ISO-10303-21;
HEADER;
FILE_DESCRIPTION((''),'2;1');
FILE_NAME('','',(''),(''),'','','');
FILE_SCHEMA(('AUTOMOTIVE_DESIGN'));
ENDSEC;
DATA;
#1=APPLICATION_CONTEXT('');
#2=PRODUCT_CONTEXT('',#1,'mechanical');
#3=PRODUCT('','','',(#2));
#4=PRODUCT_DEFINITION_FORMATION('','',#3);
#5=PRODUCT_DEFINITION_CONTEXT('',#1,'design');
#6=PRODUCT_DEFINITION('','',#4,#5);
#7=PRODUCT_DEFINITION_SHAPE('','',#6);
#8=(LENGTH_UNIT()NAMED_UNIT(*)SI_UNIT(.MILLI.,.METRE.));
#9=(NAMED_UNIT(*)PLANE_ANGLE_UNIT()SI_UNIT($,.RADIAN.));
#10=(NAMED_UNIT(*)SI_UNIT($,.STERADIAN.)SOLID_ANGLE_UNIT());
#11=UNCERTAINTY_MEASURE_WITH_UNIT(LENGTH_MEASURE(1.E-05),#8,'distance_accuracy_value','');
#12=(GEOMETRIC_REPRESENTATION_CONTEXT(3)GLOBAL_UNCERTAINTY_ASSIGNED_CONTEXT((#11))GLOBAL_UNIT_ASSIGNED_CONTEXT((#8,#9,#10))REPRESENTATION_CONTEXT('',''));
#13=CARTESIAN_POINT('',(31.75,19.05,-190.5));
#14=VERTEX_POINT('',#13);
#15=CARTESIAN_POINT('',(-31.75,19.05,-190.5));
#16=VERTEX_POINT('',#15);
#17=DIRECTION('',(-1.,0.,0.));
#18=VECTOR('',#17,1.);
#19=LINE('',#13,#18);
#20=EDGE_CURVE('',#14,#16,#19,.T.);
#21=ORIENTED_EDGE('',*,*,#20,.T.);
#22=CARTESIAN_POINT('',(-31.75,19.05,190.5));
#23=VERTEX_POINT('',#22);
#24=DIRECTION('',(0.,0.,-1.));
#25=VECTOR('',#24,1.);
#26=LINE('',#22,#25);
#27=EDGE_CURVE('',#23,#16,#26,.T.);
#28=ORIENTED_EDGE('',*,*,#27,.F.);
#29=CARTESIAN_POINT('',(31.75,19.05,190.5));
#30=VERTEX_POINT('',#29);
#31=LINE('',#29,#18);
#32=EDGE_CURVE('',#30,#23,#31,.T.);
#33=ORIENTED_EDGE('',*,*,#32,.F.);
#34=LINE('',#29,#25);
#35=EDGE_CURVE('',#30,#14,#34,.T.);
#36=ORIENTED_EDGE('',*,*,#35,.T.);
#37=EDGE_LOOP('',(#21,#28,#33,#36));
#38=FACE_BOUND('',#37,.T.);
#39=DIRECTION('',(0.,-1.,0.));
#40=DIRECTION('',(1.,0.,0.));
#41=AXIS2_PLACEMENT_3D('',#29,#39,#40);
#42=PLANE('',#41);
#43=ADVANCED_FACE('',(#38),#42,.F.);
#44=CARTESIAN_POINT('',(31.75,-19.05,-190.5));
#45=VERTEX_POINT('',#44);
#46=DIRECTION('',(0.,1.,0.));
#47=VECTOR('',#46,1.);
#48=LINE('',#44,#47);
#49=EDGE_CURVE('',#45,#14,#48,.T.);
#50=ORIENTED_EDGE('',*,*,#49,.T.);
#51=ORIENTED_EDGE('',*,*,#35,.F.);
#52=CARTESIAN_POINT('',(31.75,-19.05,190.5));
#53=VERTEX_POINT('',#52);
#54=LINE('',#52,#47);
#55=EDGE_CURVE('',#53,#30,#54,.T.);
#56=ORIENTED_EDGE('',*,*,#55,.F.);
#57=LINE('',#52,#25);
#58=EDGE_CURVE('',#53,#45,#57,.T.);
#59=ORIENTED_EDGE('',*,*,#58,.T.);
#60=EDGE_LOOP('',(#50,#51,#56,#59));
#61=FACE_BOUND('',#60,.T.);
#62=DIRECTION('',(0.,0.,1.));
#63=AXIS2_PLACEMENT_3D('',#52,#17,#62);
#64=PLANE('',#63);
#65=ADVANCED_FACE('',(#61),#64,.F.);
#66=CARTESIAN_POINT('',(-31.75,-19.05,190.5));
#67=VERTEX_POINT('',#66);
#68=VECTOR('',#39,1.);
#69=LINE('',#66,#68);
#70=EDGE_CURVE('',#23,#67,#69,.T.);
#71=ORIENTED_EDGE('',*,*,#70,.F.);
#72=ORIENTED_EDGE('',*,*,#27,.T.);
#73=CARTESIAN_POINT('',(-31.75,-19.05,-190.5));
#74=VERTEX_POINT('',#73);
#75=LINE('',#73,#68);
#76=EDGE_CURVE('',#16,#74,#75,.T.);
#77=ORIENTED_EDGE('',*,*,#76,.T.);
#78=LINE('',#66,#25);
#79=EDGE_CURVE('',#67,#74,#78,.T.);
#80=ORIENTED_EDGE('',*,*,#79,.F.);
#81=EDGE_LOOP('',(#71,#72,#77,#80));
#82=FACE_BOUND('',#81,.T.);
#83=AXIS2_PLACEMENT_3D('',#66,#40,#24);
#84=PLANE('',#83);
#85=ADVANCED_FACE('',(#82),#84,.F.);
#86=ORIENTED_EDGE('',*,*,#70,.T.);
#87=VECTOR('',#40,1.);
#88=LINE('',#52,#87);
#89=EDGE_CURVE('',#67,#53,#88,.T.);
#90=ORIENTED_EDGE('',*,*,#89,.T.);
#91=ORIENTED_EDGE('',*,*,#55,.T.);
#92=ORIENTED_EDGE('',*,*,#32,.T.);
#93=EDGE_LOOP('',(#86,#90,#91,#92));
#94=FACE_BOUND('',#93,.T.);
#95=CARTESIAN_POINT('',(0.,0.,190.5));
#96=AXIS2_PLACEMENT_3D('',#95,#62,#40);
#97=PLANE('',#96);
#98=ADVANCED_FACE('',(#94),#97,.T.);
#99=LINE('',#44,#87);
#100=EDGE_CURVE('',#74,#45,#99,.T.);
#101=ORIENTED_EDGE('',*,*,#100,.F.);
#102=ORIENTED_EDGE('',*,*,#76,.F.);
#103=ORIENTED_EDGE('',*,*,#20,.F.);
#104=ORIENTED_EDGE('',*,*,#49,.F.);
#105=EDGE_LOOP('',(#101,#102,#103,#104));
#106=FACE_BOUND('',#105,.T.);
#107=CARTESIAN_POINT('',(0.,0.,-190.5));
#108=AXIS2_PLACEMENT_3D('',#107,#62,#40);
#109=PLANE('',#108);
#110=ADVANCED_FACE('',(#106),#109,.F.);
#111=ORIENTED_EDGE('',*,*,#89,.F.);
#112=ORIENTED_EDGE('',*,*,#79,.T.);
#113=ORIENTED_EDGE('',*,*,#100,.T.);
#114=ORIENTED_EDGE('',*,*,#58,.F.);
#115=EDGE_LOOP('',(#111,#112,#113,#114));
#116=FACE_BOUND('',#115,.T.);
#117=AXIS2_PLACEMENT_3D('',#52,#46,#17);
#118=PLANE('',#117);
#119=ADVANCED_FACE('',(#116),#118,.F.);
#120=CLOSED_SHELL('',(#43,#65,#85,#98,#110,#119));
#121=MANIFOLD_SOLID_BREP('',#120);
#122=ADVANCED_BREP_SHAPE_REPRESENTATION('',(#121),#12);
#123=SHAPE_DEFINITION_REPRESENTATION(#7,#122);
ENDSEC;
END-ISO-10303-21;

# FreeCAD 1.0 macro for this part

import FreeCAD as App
import Part
import Sketcher
from FreeCAD import Vector
Q = App.Units.Quantity


def add_polygon(sketch, points):
    """Adds a closed chain of lines whose ends are joined by coincident constraints."""
    first, n = sketch.GeometryCount, len(points)
    for a, b in zip(points, points[1:] + points[:1]):
        sketch.addGeometry(Part.LineSegment(App.Vector(*a, 0), App.Vector(*b, 0)), False)
    for i in range(n):
        sketch.addConstraint(Sketcher.Constraint("Coincident", first + i, 2, first + (i + 1) % n, 1))

doc = App.newDocument("Part")
body = doc.addObject("PartDesign::Body", "Body")

sketch1 = body.newObject("Sketcher::SketchObject", "Sketch")
sketch1.AttachmentSupport = (doc.getObject("XY_Plane"), [""])
sketch1.MapMode = "FlatFace"
add_polygon(sketch1, [(-32, 19), (-32, -19), (32, -19), (32, 19)])
sketch1.addConstraint([
    Sketcher.Constraint("Vertical", 0),
    Sketcher.Constraint("Horizontal", 1),
    Sketcher.Constraint("Vertical", 2),
    Sketcher.Constraint("Horizontal", 3),
    Sketcher.Constraint("Symmetric", 0, 2, 2, 2, -1, 1),
    Sketcher.Constraint("DistanceX", 1, 1, 1, 2, Q("2.5 in")),
    Sketcher.Constraint("DistanceY", 0, 2, 0, 1, Q("1.5 in")),
])
pad1 = body.newObject("PartDesign::Pad", "Pad")
pad1.Profile = sketch1
pad1.Length = Q("15 in")
pad1.Midplane = True

doc.recompute()
